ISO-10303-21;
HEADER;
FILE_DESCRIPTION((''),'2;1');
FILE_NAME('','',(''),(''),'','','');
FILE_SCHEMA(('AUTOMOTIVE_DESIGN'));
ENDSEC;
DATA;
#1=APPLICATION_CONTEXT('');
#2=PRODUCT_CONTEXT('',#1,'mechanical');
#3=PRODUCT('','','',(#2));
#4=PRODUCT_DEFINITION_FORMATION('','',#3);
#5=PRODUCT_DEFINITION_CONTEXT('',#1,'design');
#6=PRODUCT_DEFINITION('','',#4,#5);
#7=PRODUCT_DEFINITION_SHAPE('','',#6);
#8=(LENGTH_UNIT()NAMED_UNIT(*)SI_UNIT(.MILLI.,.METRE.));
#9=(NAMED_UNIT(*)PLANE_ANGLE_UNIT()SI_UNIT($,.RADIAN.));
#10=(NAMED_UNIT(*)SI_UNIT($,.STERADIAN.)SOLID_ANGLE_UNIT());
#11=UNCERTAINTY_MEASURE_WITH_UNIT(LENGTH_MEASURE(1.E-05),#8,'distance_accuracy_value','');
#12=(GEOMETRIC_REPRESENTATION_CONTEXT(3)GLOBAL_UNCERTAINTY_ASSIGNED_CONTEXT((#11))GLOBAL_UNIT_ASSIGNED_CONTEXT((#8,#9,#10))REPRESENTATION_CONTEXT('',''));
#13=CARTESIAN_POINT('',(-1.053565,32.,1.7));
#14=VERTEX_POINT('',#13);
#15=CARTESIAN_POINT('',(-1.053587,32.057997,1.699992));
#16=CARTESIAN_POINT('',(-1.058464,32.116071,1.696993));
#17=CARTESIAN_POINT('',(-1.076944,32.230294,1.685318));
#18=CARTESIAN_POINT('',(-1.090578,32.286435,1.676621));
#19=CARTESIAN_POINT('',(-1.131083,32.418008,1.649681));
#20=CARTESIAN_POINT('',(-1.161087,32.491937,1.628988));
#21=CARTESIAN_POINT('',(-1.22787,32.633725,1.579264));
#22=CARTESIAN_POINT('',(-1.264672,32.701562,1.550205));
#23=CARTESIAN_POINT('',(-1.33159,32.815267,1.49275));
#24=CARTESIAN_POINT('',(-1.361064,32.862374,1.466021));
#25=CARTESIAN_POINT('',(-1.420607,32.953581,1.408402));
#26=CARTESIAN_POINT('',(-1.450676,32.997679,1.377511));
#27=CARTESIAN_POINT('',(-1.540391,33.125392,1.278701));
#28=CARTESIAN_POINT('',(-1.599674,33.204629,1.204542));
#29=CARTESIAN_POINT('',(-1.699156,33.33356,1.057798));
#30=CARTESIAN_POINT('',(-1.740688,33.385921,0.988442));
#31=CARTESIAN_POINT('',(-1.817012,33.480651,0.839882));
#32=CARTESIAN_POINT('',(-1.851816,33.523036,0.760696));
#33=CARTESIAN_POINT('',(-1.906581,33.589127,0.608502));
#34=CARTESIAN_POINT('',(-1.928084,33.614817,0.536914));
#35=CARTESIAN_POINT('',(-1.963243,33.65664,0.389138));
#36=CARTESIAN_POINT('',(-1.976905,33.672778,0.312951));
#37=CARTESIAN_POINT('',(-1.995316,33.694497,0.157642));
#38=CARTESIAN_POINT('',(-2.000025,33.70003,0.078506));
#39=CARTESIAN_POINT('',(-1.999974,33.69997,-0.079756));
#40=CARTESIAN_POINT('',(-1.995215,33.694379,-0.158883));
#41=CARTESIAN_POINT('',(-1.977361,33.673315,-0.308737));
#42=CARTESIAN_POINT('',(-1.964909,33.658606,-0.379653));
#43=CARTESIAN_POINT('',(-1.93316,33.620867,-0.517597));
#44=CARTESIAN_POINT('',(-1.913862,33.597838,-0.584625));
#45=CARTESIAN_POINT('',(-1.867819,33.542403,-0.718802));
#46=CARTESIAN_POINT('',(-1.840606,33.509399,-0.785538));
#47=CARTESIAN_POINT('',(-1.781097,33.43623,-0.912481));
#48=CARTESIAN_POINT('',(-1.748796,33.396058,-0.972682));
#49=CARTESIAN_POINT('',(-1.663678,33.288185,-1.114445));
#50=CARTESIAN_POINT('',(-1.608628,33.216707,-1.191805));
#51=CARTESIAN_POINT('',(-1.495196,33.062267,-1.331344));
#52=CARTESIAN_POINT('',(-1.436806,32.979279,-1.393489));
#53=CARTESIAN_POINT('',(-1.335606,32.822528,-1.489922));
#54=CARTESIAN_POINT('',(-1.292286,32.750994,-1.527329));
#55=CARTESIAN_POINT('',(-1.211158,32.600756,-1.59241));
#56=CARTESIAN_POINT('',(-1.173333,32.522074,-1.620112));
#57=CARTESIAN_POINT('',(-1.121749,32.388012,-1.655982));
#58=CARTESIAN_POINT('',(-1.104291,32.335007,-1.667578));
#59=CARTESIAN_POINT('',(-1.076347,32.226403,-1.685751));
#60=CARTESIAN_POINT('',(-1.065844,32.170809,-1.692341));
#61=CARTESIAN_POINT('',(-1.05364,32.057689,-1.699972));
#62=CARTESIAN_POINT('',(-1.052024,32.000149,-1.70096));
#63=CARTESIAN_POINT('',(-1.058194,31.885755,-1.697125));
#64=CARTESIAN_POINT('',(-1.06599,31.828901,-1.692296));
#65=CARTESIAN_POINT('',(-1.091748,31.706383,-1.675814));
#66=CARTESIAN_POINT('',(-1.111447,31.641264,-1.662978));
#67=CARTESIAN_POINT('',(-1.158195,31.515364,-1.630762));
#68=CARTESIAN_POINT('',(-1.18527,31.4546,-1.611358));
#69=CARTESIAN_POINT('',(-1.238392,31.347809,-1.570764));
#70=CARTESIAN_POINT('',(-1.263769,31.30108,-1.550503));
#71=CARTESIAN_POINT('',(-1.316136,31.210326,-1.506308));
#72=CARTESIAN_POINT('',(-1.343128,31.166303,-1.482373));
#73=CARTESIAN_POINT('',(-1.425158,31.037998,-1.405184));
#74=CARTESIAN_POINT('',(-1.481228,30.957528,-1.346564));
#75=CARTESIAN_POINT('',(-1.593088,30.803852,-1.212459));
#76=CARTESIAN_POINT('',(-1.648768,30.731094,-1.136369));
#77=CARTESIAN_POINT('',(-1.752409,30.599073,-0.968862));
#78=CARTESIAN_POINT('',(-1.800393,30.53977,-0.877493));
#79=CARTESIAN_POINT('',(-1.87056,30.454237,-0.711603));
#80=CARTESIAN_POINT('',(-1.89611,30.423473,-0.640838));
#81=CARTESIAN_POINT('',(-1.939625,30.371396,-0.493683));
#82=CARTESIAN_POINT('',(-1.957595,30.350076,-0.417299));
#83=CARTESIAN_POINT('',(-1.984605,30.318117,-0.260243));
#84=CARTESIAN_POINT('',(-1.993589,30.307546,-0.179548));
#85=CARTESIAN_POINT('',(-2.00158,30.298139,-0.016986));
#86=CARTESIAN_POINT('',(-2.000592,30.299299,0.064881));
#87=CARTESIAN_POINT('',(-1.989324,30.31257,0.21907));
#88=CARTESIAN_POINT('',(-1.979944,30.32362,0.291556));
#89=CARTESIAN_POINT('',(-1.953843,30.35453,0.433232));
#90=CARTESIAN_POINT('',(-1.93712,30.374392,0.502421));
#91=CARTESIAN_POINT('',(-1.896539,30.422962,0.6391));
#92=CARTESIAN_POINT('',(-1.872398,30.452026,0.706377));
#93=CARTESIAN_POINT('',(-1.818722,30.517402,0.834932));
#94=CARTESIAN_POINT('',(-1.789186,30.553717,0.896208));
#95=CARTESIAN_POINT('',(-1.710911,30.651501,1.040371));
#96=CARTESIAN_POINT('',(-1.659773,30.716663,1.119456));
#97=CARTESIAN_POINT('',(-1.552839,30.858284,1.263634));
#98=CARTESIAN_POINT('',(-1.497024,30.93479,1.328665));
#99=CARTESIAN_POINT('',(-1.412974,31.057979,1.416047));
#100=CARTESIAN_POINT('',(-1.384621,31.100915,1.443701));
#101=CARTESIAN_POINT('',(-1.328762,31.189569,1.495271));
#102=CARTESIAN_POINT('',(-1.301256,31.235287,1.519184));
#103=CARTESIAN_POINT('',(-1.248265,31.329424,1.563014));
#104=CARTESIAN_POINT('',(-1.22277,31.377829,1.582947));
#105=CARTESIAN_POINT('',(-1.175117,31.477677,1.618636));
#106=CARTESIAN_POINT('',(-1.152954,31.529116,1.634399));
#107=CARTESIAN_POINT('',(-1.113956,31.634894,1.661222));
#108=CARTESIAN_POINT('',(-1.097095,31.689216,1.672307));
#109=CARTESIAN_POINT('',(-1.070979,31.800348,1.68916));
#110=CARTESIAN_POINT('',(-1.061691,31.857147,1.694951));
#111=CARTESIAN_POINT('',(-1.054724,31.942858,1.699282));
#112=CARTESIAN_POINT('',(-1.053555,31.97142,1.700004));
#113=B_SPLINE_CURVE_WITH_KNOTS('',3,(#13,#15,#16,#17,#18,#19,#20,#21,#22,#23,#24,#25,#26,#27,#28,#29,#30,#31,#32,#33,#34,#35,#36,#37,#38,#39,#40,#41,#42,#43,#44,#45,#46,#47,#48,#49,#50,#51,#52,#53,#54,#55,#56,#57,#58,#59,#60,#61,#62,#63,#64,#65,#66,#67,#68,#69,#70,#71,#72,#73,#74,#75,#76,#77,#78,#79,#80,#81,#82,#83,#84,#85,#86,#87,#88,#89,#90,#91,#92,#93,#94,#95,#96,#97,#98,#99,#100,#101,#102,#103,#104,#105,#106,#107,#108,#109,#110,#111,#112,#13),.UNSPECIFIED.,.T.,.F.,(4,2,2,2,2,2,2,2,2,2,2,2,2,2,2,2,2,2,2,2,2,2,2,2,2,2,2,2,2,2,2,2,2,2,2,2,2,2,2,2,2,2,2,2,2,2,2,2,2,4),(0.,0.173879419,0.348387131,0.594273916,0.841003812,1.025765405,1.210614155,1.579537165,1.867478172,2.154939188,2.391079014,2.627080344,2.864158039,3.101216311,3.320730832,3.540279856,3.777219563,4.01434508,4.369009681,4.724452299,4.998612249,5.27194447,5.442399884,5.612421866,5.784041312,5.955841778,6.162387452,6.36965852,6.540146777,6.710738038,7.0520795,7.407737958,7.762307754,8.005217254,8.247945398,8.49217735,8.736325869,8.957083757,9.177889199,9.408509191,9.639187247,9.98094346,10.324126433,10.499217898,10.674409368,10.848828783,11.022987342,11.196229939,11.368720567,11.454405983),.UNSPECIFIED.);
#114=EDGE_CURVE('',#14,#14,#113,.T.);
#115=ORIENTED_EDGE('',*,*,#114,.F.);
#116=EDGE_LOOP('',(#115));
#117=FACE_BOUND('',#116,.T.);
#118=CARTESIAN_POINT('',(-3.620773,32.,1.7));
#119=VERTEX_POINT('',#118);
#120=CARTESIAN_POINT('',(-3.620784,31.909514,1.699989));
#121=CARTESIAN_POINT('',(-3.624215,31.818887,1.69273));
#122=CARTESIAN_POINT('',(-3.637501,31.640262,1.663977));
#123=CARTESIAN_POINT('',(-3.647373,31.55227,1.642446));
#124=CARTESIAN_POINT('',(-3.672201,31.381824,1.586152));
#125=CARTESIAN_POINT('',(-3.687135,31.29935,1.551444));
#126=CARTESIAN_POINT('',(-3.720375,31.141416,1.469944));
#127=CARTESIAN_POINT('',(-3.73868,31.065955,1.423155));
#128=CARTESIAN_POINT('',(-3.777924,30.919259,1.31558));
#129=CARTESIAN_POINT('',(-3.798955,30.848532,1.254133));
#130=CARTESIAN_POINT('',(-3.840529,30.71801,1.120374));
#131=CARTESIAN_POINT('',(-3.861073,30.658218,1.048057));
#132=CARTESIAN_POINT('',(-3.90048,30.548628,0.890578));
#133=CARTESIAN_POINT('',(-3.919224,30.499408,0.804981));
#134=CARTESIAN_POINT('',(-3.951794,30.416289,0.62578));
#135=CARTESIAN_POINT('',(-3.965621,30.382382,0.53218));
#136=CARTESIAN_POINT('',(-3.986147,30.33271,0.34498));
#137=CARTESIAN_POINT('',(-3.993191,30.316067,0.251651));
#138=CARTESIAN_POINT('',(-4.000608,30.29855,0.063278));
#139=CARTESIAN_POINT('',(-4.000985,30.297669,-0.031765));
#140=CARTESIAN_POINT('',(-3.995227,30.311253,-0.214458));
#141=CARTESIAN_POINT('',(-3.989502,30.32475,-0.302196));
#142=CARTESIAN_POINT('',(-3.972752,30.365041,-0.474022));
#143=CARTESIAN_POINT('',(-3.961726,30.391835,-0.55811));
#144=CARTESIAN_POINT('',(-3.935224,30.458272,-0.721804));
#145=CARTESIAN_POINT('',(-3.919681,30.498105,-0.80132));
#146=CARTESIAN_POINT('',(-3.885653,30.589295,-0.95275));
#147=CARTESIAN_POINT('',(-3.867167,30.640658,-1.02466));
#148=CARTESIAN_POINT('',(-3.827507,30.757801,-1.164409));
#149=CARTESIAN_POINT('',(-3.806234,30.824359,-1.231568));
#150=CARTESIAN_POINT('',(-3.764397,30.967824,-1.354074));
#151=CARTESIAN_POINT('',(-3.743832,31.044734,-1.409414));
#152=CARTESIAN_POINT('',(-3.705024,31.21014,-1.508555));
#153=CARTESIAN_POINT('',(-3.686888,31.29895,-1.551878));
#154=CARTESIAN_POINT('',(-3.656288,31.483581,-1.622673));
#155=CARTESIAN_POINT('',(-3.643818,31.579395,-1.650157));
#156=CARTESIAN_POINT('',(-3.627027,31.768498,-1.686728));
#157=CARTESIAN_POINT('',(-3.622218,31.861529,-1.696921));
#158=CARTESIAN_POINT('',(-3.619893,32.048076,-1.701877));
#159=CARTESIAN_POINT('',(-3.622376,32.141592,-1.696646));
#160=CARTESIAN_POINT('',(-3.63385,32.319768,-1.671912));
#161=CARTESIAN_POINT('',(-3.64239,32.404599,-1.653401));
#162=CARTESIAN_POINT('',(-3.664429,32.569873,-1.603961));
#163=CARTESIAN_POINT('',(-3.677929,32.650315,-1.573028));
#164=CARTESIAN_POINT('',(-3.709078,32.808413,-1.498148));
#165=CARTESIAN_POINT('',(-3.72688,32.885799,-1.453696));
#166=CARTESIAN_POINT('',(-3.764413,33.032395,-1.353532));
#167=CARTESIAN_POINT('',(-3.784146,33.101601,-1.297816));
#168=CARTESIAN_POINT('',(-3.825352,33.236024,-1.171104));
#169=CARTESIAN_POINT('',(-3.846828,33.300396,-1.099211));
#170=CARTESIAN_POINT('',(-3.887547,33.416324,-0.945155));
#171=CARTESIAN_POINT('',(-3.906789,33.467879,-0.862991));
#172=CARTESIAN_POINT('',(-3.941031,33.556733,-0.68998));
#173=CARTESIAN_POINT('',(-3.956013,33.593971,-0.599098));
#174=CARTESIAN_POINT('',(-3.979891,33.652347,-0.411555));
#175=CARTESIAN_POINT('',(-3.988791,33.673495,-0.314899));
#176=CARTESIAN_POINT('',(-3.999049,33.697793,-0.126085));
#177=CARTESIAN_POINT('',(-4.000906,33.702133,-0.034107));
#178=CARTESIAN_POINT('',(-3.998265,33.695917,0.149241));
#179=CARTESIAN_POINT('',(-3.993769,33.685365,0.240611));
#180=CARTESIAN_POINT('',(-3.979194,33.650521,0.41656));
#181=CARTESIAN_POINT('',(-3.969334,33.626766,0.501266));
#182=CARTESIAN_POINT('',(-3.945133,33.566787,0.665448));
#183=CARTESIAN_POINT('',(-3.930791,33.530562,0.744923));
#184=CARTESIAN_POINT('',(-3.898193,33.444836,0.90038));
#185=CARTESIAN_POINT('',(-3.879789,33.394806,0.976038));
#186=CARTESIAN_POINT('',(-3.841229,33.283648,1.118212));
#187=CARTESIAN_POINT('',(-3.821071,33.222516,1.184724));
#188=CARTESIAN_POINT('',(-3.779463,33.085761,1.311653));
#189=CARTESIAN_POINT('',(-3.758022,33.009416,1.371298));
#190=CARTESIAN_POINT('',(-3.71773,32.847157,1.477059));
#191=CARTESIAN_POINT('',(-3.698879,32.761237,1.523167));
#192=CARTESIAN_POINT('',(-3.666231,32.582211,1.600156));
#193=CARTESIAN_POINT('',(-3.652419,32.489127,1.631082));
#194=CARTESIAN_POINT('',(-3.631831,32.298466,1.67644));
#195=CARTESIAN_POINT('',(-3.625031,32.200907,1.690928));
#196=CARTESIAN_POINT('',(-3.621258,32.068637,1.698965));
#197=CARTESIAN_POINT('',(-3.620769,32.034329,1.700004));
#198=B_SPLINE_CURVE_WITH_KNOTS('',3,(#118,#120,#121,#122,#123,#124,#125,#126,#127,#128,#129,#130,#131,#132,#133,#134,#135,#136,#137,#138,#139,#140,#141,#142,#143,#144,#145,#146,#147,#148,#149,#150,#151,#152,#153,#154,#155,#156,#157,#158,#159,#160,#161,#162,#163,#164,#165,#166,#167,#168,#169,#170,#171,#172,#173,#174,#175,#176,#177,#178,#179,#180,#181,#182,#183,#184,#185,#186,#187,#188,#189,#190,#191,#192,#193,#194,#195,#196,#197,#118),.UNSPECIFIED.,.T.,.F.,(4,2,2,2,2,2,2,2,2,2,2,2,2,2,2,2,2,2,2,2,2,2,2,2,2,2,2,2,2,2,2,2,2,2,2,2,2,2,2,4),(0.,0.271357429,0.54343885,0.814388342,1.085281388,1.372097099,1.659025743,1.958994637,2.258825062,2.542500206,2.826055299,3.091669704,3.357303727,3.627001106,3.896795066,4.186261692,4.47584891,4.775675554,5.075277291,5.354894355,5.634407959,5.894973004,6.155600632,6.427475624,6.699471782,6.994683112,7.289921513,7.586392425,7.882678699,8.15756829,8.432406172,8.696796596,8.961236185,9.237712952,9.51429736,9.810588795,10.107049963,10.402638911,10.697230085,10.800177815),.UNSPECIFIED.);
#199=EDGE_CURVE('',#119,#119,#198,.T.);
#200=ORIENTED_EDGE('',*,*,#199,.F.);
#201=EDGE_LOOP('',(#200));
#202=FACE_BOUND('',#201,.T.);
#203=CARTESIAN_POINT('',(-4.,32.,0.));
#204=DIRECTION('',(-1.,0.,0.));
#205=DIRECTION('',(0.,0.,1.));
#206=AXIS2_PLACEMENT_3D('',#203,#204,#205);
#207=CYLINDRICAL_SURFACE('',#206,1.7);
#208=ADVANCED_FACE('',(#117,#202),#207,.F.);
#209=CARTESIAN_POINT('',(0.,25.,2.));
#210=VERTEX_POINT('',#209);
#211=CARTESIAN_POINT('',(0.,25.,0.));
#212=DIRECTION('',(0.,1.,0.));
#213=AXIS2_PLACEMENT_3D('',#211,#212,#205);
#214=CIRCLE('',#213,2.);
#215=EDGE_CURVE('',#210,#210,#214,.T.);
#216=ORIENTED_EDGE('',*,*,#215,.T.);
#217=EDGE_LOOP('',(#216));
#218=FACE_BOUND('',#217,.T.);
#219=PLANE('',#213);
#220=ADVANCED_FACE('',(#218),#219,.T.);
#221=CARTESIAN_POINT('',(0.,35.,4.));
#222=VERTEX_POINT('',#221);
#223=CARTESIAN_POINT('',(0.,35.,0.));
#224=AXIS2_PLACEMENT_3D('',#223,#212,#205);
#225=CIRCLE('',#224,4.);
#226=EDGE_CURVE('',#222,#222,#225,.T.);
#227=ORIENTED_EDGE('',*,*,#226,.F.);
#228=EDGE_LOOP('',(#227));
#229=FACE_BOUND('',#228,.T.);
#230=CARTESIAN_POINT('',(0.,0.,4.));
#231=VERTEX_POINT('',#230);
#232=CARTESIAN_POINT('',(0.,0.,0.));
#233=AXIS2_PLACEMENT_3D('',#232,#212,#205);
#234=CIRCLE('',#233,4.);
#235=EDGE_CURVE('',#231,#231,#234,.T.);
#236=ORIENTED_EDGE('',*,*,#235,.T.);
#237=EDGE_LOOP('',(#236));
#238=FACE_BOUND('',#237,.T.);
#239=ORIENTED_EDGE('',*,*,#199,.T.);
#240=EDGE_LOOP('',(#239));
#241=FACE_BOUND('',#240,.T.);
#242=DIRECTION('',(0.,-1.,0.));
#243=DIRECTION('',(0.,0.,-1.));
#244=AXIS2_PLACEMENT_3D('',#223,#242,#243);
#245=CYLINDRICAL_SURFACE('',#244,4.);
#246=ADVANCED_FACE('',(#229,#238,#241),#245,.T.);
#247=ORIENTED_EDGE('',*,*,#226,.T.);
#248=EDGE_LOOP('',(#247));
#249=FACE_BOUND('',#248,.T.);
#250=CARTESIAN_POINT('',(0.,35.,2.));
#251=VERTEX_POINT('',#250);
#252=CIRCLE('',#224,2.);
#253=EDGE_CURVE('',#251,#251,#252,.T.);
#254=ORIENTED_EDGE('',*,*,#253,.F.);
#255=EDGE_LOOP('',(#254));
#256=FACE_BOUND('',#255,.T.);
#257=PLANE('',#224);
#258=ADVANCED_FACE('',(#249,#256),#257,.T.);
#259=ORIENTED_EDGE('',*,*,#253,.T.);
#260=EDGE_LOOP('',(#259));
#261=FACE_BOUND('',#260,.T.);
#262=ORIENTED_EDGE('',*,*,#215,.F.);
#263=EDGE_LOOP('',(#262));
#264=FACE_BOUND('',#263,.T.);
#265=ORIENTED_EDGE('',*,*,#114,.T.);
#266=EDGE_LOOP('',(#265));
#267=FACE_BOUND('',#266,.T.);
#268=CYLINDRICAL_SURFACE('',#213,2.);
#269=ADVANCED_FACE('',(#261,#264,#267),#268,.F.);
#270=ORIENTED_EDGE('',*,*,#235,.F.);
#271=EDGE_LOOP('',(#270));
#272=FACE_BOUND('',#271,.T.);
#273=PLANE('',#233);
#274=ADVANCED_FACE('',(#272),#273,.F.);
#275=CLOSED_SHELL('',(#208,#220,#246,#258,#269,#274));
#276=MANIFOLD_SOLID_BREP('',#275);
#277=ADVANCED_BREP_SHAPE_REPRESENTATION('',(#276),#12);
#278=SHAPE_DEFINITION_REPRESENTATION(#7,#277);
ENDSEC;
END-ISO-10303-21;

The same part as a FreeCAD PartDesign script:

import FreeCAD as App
import Part
import Sketcher
from FreeCAD import Vector

doc = App.newDocument("Part")
body = doc.addObject("PartDesign::Body", "Body")

# Sketch on XZ plane
sketch1 = doc.addObject("Sketcher::SketchObject", "Sketch")
body.addObject(sketch1)
sketch1.AttachmentSupport = (doc.XZ_Plane, [""])
sketch1.MapMode = "FlatFace"
sketch1.addGeometry(Part.Circle(Vector(0, 0, 0), Vector(0, 0, 1), 4), False)
sketch1.addConstraint(Sketcher.Constraint("Coincident", 0, 3, -1, 1))
sketch1.addConstraint(Sketcher.Constraint("Diameter", 0, 8.0))
pad1 = doc.addObject("PartDesign::Pad", "Pad")
body.addObject(pad1)
pad1.Profile = sketch1
pad1.Length = 35
pad1.Reversed = True

# Sketch on XZ plane
sketch2 = doc.addObject("Sketcher::SketchObject", "Sketch001")
body.addObject(sketch2)
sketch2.AttachmentSupport = (doc.XZ_Plane, [""])
sketch2.MapMode = "FlatFace"
sketch2.AttachmentOffset = App.Placement(Vector(0, 0, -35), App.Rotation())
sketch2.addGeometry(Part.Circle(Vector(0, 0, 0), Vector(0, 0, 1), 2), False)
sketch2.addConstraint(Sketcher.Constraint("Coincident", 0, 3, -1, 1))
sketch2.addConstraint(Sketcher.Constraint("Diameter", 0, 4.0))
pocket1 = doc.addObject("PartDesign::Pocket", "Pocket")
body.addObject(pocket1)
pocket1.Profile = sketch2
pocket1.Length = 10
pocket1.Reversed = True

# Sketch on YZ plane
sketch3 = doc.addObject("Sketcher::SketchObject", "Sketch002")
body.addObject(sketch3)
sketch3.AttachmentSupport = (doc.YZ_Plane, [""])
sketch3.MapMode = "FlatFace"
sketch3.AttachmentOffset = App.Placement(Vector(0, 0, -4), App.Rotation())
sketch3.addGeometry(Part.Circle(Vector(32, 0, 0), Vector(0, 0, 1), 1.7), False)
sketch3.addConstraint(Sketcher.Constraint("PointOnObject", 0, 3, -1))
sketch3.addConstraint(Sketcher.Constraint("Diameter", 0, 3.4))
sketch3.addConstraint(Sketcher.Constraint("DistanceX", -1, 1, 0, 3, 32.0))
doc.recompute()
hole = doc.addObject("PartDesign::Hole", "Hole")
body.addObject(hole)
hole.Profile = sketch3
hole.ThreadType = "None"
hole.Diameter = 3.4
hole.DepthType = "Dimension"
hole.Depth = 3
hole.DrillPoint = "Angled"
hole.DrillPointAngle = 118
hole.Reversed = True

doc.recompute()
